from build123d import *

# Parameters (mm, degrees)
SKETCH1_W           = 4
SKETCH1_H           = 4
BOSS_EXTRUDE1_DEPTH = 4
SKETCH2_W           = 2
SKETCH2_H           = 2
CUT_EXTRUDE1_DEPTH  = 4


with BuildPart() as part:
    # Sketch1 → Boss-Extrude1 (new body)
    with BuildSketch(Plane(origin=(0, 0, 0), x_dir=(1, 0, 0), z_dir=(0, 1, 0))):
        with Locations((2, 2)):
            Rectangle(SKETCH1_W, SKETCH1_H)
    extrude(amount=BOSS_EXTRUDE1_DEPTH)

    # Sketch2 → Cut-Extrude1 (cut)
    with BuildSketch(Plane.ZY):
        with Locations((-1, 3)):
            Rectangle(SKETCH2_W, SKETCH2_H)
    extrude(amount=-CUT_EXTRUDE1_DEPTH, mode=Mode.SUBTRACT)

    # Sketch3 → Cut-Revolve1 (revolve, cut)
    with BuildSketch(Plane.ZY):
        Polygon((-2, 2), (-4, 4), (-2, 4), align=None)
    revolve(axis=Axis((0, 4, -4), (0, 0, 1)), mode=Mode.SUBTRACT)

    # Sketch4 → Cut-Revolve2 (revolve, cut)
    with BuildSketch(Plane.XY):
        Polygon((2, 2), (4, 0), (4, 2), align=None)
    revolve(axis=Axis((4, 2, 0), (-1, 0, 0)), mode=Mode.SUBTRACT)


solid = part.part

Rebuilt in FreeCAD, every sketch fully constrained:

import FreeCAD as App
import Part
import Sketcher
from FreeCAD import Vector
Q = App.Units.Quantity

doc = App.newDocument("Part")
body = doc.addObject("PartDesign::Body", "Body")

# Sketch on XZ plane
sketch1 = body.newObject("Sketcher::SketchObject", "Sketch")
sketch1.AttachmentSupport = (doc.getObject("XZ_Plane"), [""])
sketch1.MapMode = "FlatFace"
sketch1.addGeometry([
    Part.LineSegment(Vector(0, -4, 0), Vector(0, 0, 0)),
    Part.LineSegment(Vector(0, 0, 0), Vector(4, 0, 0)),
    Part.LineSegment(Vector(4, 0, 0), Vector(4, -4, 0)),
    Part.LineSegment(Vector(4, -4, 0), Vector(0, -4, 0)),
], False)
sketch1.addConstraint([
    Sketcher.Constraint("Coincident", 0, 2, 1, 1),
    Sketcher.Constraint("Coincident", 1, 2, 2, 1),
    Sketcher.Constraint("Coincident", 2, 2, 3, 1),
    Sketcher.Constraint("Coincident", 3, 2, 0, 1),
    Sketcher.Constraint("Vertical", 0),
    Sketcher.Constraint("Horizontal", 1),
    Sketcher.Constraint("Vertical", 2),
    Sketcher.Constraint("Horizontal", 3),
    Sketcher.Constraint("Coincident", 0, 2, -1, 1),
    Sketcher.Constraint("Equal", 3, 0),
    Sketcher.Constraint("DistanceX", 1, 1, 1, 2, Q("4 mm")),
])
pad1 = body.newObject("PartDesign::Pad", "Pad")
pad1.Profile = sketch1
pad1.Length = 4
pad1.Reversed = True

# Sketch on YZ plane
sketch2 = body.newObject("Sketcher::SketchObject", "Sketch001")
sketch2.AttachmentSupport = (doc.getObject("YZ_Plane"), [""])
sketch2.MapMode = "FlatFace"
sketch2.addGeometry([
    Part.LineSegment(Vector(4, -2, 0), Vector(2, -2, 0)),
    Part.LineSegment(Vector(2, -2, 0), Vector(2, 0, 0)),
    Part.LineSegment(Vector(2, 0, 0), Vector(4, 0, 0)),
    Part.LineSegment(Vector(4, 0, 0), Vector(4, -2, 0)),
], False)
sketch2.addConstraint([
    Sketcher.Constraint("Coincident", 0, 2, 1, 1),
    Sketcher.Constraint("Coincident", 1, 2, 2, 1),
    Sketcher.Constraint("Coincident", 2, 2, 3, 1),
    Sketcher.Constraint("Coincident", 3, 2, 0, 1),
    Sketcher.Constraint("Horizontal", 0),
    Sketcher.Constraint("Vertical", 1),
    Sketcher.Constraint("Horizontal", 2),
    Sketcher.Constraint("Vertical", 3),
    Sketcher.Constraint("PointOnObject", 1, 2, -1),
    Sketcher.Constraint("Equal", 2, 1),
    Sketcher.Constraint("DistanceX", 0, 2, 0, 1, Q("2 mm")),
    Sketcher.Constraint("DistanceX", -1, 1, 0, 2, Q("2 mm")),
])
pocket1 = body.newObject("PartDesign::Pocket", "Pocket")
pocket1.Profile = sketch2
pocket1.Length = 4
pocket1.Reversed = True

# Sketch on YZ plane
sketch3 = body.newObject("Sketcher::SketchObject", "Sketch002")
sketch3.AttachmentSupport = (doc.getObject("YZ_Plane"), [""])
sketch3.MapMode = "FlatFace"
sketch3.addGeometry([
    Part.LineSegment(Vector(4, -4, 0), Vector(2, -2, 0)),
    Part.LineSegment(Vector(2, -2, 0), Vector(4, -2, 0)),
    Part.LineSegment(Vector(4, -2, 0), Vector(4, -4, 0)),
], False)
sketch3.addGeometry(Part.LineSegment(Vector(4, -4, 0), Vector(4, -2, 0)), True)  # axis
sketch3.addConstraint([
    Sketcher.Constraint("Coincident", 0, 2, 1, 1),
    Sketcher.Constraint("Coincident", 1, 2, 2, 1),
    Sketcher.Constraint("Coincident", 2, 2, 0, 1),
    Sketcher.Constraint("Horizontal", 1),
    Sketcher.Constraint("Vertical", 2),
    Sketcher.Constraint("Vertical", 3),
    Sketcher.Constraint("Coincident", 3, 1, 2, 2),
    Sketcher.Constraint("Horizontal", 0, 2, 3, 2),
    Sketcher.Constraint("Equal", 1, 2),
    Sketcher.Constraint("DistanceX", 1, 1, 1, 2, Q("2 mm")),
    Sketcher.Constraint("DistanceX", -1, 1, 0, 2, Q("2 mm")),
    Sketcher.Constraint("DistanceY", 0, 2, -1, 1, Q("2 mm")),
])
groove = body.newObject("PartDesign::Groove", "Groove")
groove.Profile = sketch3
groove.ReferenceAxis = (sketch3, ["Axis0"])
groove.Angle = 360

# Sketch on XY plane
sketch4 = body.newObject("Sketcher::SketchObject", "Sketch003")
sketch4.AttachmentSupport = (doc.getObject("XY_Plane"), [""])
sketch4.MapMode = "FlatFace"
sketch4.addGeometry([
    Part.LineSegment(Vector(2, 2, 0), Vector(4, 0, 0)),
    Part.LineSegment(Vector(4, 0, 0), Vector(4, 2, 0)),
    Part.LineSegment(Vector(4, 2, 0), Vector(2, 2, 0)),
], False)
sketch4.addGeometry(Part.LineSegment(Vector(4, 2, 0), Vector(2, 2, 0)), True)  # axis
sketch4.addConstraint([
    Sketcher.Constraint("Coincident", 0, 2, 1, 1),
    Sketcher.Constraint("Coincident", 1, 2, 2, 1),
    Sketcher.Constraint("Coincident", 2, 2, 0, 1),
    Sketcher.Constraint("Vertical", 1),
    Sketcher.Constraint("Horizontal", 2),
    Sketcher.Constraint("Horizontal", 3),
    Sketcher.Constraint("Coincident", 3, 1, 1, 2),
    Sketcher.Constraint("PointOnObject", 0, 2, -1),
    Sketcher.Constraint("Equal", 2, 3),
    Sketcher.Constraint("Equal", 3, 1),
    Sketcher.Constraint("DistanceX", 2, 2, 2, 1, Q("2 mm")),
    Sketcher.Constraint("DistanceX", -1, 1, 0, 2, Q("4 mm")),
])
groove2 = body.newObject("PartDesign::Groove", "Groove001")
groove2.Profile = sketch4
groove2.ReferenceAxis = (sketch4, ["Axis0"])
groove2.Angle = 360

doc.recompute()
